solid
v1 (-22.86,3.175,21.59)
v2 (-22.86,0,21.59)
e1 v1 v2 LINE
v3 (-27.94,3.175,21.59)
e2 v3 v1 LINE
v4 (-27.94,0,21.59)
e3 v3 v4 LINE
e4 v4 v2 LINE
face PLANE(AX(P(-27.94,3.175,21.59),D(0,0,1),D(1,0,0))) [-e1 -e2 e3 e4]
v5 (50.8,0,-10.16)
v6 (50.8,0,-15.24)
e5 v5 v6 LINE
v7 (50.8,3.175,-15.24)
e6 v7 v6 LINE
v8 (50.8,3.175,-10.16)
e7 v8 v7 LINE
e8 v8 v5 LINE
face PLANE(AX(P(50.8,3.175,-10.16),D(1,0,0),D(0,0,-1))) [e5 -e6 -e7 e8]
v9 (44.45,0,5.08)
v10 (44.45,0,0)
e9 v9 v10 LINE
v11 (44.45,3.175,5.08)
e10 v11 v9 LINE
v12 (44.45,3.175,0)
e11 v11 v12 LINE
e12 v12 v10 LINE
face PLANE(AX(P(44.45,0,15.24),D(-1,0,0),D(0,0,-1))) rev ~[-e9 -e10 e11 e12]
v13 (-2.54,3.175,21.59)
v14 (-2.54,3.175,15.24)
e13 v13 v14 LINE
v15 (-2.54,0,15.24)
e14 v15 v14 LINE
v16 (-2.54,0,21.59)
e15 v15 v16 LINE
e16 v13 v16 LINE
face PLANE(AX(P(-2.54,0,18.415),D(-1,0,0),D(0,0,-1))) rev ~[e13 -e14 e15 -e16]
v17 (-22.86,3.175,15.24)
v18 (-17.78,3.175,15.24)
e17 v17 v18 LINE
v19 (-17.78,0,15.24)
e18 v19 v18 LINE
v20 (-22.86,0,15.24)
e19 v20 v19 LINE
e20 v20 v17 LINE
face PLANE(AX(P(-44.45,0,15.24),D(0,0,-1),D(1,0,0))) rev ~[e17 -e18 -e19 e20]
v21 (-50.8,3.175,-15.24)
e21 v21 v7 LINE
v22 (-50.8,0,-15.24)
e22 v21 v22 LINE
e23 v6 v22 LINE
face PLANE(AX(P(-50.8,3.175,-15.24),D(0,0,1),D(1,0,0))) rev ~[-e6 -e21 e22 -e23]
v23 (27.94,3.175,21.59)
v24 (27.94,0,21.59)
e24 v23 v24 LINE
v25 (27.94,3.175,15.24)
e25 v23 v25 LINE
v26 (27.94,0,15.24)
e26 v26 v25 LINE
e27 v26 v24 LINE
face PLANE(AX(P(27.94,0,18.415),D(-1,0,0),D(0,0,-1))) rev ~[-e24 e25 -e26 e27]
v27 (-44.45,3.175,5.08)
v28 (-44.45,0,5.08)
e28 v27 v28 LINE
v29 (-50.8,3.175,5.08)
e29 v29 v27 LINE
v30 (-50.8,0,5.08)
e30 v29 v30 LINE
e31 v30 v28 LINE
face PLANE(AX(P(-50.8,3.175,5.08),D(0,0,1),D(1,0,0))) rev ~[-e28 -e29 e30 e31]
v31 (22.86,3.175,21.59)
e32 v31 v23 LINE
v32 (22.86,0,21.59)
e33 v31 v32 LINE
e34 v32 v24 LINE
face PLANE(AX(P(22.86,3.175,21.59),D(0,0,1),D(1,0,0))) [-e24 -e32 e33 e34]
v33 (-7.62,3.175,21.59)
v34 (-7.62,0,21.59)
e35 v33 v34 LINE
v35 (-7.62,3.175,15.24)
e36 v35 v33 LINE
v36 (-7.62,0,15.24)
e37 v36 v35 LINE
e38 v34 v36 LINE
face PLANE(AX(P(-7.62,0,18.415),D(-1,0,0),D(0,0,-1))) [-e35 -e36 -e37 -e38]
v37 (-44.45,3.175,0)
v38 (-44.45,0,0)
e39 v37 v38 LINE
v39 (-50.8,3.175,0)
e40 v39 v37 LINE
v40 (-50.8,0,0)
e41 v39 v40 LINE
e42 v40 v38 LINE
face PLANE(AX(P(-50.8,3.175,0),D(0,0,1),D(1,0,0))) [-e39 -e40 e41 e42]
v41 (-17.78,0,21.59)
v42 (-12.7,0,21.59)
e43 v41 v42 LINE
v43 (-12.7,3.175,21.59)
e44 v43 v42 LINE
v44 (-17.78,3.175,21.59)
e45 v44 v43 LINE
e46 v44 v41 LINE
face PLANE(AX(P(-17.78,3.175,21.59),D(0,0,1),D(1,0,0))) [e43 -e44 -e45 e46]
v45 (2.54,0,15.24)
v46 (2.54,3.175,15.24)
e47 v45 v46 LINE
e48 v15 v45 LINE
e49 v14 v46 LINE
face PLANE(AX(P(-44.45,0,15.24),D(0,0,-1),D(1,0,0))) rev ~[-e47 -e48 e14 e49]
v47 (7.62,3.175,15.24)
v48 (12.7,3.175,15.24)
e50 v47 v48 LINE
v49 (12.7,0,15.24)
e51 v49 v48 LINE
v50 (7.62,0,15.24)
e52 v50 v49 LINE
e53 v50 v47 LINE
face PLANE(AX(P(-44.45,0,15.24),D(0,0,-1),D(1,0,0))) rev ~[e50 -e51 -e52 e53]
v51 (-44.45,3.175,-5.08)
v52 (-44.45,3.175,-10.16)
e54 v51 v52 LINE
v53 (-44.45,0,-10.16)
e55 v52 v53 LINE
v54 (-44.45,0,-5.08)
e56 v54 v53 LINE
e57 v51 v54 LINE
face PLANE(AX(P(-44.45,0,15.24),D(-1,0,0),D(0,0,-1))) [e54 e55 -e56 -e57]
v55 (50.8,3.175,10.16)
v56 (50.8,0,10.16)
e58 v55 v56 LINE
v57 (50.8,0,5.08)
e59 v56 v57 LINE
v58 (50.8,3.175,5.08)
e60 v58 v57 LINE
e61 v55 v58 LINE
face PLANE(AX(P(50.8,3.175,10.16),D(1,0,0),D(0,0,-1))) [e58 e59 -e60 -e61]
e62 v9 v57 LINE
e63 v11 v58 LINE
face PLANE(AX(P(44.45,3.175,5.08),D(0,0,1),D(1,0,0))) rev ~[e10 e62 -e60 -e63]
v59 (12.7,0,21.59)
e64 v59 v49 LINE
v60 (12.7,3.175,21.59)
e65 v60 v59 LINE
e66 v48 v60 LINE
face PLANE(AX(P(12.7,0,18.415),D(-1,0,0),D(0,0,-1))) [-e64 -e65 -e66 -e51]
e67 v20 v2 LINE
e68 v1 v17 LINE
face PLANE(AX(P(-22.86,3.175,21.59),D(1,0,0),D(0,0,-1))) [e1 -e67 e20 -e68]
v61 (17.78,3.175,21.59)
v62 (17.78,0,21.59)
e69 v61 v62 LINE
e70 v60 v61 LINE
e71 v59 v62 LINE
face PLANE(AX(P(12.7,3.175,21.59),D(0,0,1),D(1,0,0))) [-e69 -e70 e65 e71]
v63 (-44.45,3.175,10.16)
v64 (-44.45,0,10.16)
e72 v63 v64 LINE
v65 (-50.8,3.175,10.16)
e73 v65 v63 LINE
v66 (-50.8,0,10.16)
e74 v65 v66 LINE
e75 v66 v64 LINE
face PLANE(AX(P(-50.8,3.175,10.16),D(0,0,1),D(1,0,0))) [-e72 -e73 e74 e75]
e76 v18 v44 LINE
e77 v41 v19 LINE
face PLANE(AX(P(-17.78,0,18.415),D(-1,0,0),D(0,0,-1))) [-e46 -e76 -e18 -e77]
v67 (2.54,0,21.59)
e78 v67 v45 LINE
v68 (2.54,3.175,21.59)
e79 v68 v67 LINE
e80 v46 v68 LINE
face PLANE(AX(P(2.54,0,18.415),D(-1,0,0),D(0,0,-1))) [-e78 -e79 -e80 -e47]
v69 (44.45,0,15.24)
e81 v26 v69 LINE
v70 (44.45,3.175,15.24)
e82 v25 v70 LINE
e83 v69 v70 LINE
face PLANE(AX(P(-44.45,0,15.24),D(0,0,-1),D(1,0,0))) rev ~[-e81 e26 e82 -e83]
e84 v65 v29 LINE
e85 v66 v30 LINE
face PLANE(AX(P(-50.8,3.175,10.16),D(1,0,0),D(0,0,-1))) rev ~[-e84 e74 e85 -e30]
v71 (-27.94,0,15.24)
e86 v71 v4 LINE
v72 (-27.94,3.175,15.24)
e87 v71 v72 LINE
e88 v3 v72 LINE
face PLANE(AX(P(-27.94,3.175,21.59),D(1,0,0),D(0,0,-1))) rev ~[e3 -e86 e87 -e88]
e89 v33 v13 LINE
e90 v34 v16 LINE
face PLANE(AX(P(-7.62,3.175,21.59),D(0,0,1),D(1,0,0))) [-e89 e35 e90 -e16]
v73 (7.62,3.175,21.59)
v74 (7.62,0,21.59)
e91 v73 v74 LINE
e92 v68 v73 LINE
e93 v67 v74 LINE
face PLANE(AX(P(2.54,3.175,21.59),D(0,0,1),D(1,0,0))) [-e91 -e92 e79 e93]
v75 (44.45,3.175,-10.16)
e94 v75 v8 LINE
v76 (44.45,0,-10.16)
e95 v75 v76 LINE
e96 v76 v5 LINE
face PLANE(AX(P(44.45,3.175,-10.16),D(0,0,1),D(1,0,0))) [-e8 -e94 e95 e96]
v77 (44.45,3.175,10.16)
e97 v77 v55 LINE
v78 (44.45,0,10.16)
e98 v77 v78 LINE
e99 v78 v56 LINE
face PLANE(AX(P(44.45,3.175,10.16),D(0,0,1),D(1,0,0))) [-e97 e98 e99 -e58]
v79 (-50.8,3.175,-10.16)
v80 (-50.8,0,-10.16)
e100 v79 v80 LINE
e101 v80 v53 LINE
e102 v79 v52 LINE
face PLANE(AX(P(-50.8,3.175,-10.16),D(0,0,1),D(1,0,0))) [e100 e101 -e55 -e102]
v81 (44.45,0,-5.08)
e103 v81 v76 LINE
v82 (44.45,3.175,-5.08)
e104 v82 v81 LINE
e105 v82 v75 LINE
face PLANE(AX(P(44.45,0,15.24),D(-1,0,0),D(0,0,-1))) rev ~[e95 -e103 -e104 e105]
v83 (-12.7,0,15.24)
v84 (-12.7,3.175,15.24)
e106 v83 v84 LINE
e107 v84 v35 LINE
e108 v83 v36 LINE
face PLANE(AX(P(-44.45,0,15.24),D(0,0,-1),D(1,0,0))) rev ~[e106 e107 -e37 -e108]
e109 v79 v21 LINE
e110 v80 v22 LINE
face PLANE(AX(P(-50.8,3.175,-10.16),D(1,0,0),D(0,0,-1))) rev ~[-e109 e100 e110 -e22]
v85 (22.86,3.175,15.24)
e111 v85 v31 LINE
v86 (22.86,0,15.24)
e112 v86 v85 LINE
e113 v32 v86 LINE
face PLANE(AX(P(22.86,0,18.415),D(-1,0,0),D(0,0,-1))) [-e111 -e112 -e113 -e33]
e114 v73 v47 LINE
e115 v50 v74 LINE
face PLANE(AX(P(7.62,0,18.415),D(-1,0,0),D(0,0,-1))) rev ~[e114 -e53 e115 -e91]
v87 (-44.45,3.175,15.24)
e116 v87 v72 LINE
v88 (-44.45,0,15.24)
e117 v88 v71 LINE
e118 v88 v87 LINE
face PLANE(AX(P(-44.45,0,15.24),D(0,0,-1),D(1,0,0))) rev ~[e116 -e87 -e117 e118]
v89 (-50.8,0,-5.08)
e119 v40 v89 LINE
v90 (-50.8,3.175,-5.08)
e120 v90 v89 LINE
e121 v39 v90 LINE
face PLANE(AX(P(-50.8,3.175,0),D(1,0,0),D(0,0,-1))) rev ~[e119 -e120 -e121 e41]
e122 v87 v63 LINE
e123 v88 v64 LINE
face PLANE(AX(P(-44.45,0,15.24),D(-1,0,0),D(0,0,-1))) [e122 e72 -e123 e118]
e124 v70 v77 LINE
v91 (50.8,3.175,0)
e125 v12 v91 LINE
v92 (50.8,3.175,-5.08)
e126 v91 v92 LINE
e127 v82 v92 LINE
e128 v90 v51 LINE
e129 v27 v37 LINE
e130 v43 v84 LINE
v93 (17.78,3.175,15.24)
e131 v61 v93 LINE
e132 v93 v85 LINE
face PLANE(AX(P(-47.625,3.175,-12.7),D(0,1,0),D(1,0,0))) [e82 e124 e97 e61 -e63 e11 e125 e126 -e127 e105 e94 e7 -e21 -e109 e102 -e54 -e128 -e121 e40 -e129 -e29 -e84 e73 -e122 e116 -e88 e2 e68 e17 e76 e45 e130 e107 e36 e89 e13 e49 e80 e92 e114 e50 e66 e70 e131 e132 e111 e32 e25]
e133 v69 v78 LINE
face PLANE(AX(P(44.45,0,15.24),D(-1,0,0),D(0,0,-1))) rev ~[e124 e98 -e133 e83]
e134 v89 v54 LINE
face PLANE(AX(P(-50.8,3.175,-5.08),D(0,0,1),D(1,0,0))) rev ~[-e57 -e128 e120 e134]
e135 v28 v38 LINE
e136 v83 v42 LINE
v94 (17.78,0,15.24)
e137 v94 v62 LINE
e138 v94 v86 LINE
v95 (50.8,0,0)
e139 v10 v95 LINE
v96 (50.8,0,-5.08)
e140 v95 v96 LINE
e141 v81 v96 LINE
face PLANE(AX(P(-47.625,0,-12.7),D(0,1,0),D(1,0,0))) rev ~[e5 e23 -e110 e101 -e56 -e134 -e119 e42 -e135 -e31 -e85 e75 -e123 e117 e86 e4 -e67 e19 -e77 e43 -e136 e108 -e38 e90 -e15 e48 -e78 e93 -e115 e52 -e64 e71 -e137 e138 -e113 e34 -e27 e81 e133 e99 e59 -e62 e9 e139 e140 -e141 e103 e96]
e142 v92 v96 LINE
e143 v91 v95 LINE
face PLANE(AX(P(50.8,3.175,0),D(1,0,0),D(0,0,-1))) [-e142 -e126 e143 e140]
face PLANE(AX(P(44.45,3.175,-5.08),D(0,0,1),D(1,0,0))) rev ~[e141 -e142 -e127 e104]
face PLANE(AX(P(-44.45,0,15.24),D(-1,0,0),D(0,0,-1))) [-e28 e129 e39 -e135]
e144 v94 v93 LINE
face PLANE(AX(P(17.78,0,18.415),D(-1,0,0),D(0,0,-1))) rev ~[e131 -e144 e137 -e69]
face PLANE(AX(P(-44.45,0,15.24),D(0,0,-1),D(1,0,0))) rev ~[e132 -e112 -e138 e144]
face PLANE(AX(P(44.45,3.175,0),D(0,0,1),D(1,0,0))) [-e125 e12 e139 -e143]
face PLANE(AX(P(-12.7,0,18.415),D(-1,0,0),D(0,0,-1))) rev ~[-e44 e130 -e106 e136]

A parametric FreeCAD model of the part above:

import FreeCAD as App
import Part
import Sketcher
Q = App.Units.Quantity


def add_polygon(sketch, points):
    """Adds a closed chain of lines whose ends are joined by coincident constraints."""
    first, n = sketch.GeometryCount, len(points)
    for a, b in zip(points, points[1:] + points[:1]):
        sketch.addGeometry(Part.LineSegment(App.Vector(*a, 0), App.Vector(*b, 0)), False)
    for i in range(n):
        sketch.addConstraint(Sketcher.Constraint("Coincident", first + i, 2, first + (i + 1) % n, 1))

doc = App.newDocument("Part")
body = doc.addObject("PartDesign::Body", "Body")

# Sketch on XZ plane
sketch1 = body.newObject("Sketcher::SketchObject", "Sketch")
sketch1.AttachmentSupport = (doc.getObject("XZ_Plane"), [""])
sketch1.MapMode = "FlatFace"
add_polygon(sketch1, [(-44, -15), (-44, 15), (44, 15), (44, -15)])  # lines 0-3
sketch1.addConstraint(Sketcher.Constraint("Vertical", 0))
sketch1.addConstraint(Sketcher.Constraint("Horizontal", 1))
sketch1.addConstraint(Sketcher.Constraint("Vertical", 2))
sketch1.addConstraint(Sketcher.Constraint("Horizontal", 3))
sketch1.addConstraint(Sketcher.Constraint("Symmetric", 0, 2, 2, 2, -1, 1))
sketch1.addConstraint(Sketcher.Constraint("DistanceX", 1, 1, 1, 2, Q("3.5 in")))
sketch1.addConstraint(Sketcher.Constraint("DistanceY", 0, 1, 0, 2, Q("1.2 in")))
pad1 = body.newObject("PartDesign::Pad", "Pad")
pad1.Profile = sketch1
pad1.Length = Q("0.125 in")
pad1.Reversed = True

# Sketch on XZ plane
sketch2 = body.newObject("Sketcher::SketchObject", "Sketch001")
sketch2.AttachmentSupport = (doc.getObject("XZ_Plane"), [""])
sketch2.MapMode = "FlatFace"
add_polygon(sketch2, [(-27.9, 15.2), (-27.9, 18.4), (-22.9, 18.4), (-22.9, 15.2)])  # lines 0-3
add_polygon(sketch2, [(-17.8, 15.2), (-17.8, 18.4), (-12.7, 18.4), (-12.7, 15.2)])  # lines 4-7
add_polygon(sketch2, [(-7.6, 15.2), (-7.6, 18.4), (-2.5, 18.4), (-2.5, 15.2)])  # lines 8-11
add_polygon(sketch2, [(2.5, 15.2), (2.5, 18.4), (7.6, 18.4), (7.6, 15.2)])  # lines 12-15
add_polygon(sketch2, [(12.7, 15.2), (12.7, 18.4), (17.8, 18.4), (17.8, 15.2)])  # lines 16-19
add_polygon(sketch2, [(22.9, 15.2), (22.9, 18.4), (27.9, 18.4), (27.9, 15.2)])  # lines 20-23
sketch2.addConstraint(Sketcher.Constraint("Vertical", 0))
sketch2.addConstraint(Sketcher.Constraint("Horizontal", 1))
sketch2.addConstraint(Sketcher.Constraint("Vertical", 2))
sketch2.addConstraint(Sketcher.Constraint("Horizontal", 3))
sketch2.addConstraint(Sketcher.Constraint("Vertical", 4))
sketch2.addConstraint(Sketcher.Constraint("Horizontal", 5))
sketch2.addConstraint(Sketcher.Constraint("Vertical", 6))
sketch2.addConstraint(Sketcher.Constraint("Horizontal", 7))
sketch2.addConstraint(Sketcher.Constraint("Vertical", 8))
sketch2.addConstraint(Sketcher.Constraint("Horizontal", 9))
sketch2.addConstraint(Sketcher.Constraint("Vertical", 10))
sketch2.addConstraint(Sketcher.Constraint("Horizontal", 11))
sketch2.addConstraint(Sketcher.Constraint("Vertical", 12))
sketch2.addConstraint(Sketcher.Constraint("Horizontal", 13))
sketch2.addConstraint(Sketcher.Constraint("Vertical", 14))
sketch2.addConstraint(Sketcher.Constraint("Horizontal", 15))
sketch2.addConstraint(Sketcher.Constraint("Vertical", 16))
sketch2.addConstraint(Sketcher.Constraint("Horizontal", 17))
sketch2.addConstraint(Sketcher.Constraint("Vertical", 18))
sketch2.addConstraint(Sketcher.Constraint("Horizontal", 19))
sketch2.addConstraint(Sketcher.Constraint("Vertical", 20))
sketch2.addConstraint(Sketcher.Constraint("Horizontal", 21))
sketch2.addConstraint(Sketcher.Constraint("Vertical", 22))
sketch2.addConstraint(Sketcher.Constraint("Horizontal", 23))
sketch2.addConstraint(Sketcher.Constraint("Symmetric", 9, 2, 12, 2, -2))
sketch2.addConstraint(Sketcher.Constraint("Symmetric", 11, 2, 14, 2, -2))
sketch2.addConstraint(Sketcher.Constraint("Symmetric", 5, 2, 16, 2, -2))
sketch2.addConstraint(Sketcher.Constraint("Symmetric", 7, 2, 18, 2, -2))
sketch2.addConstraint(Sketcher.Constraint("Symmetric", 1, 2, 20, 2, -2))
sketch2.addConstraint(Sketcher.Constraint("Symmetric", 3, 2, 22, 2, -2))
sketch2.addConstraint(Sketcher.Constraint("Horizontal", 1, 2, 4, 2))
sketch2.addConstraint(Sketcher.Constraint("Horizontal", 3, 2, 6, 2))
sketch2.addConstraint(Sketcher.Constraint("Horizontal", 5, 2, 8, 2))
sketch2.addConstraint(Sketcher.Constraint("Horizontal", 7, 2, 10, 2))
sketch2.addConstraint(Sketcher.Constraint("Equal", 3, 5))
sketch2.addConstraint(Sketcher.Constraint("Equal", 7, 9))
sketch2.addConstraint(Sketcher.Constraint("DistanceX", 1, 1, 1, 2, Q("0.2 in")))
sketch2.addConstraint(Sketcher.Constraint("DistanceX", 0, 2, -1, 1, Q("1.1 in")))
sketch2.addConstraint(Sketcher.Constraint("DistanceY", -1, 1, 2, 2, Q("0.6 in")))
sketch2.addConstraint(Sketcher.Constraint("DistanceX", 4, 2, -1, 1, Q("0.7 in")))
sketch2.addConstraint(Sketcher.Constraint("DistanceX", 8, 2, -1, 1, Q("0.3 in")))
sketch2.addConstraint(Sketcher.Constraint("DistanceY", 0, 1, 0, 2, Q("0.125 in")))
pad2 = body.newObject("PartDesign::Pad", "Pad001")
pad2.Profile = sketch2
pad2.Length = Q("0.125 in")
pad2.Reversed = True

# Sketch on XZ plane
sketch3 = body.newObject("Sketcher::SketchObject", "Sketch002")
sketch3.AttachmentSupport = (doc.getObject("XZ_Plane"), [""])
sketch3.MapMode = "FlatFace"
sketch3.AttachmentOffset = App.Placement(App.Vector(0, 0, -0.125 * 25.4), App.Rotation())
add_polygon(sketch3, [(-27.9, 18.4), (-27.9, 21.6), (-22.9, 21.6), (-22.9, 18.4)])  # lines 0-3
add_polygon(sketch3, [(-17.8, 18.4), (-17.8, 21.6), (-12.7, 21.6), (-12.7, 18.4)])  # lines 4-7
add_polygon(sketch3, [(-7.6, 18.4), (-7.6, 21.6), (-2.5, 21.6), (-2.5, 18.4)])  # lines 8-11
add_polygon(sketch3, [(2.5, 18.4), (2.5, 21.6), (7.6, 21.6), (7.6, 18.4)])  # lines 12-15
add_polygon(sketch3, [(12.7, 18.4), (12.7, 21.6), (17.8, 21.6), (17.8, 18.4)])  # lines 16-19
add_polygon(sketch3, [(22.9, 18.4), (22.9, 21.6), (27.9, 21.6), (27.9, 18.4)])  # lines 20-23
sketch3.addConstraint(Sketcher.Constraint("Vertical", 0))
sketch3.addConstraint(Sketcher.Constraint("Horizontal", 1))
sketch3.addConstraint(Sketcher.Constraint("Vertical", 2))
sketch3.addConstraint(Sketcher.Constraint("Horizontal", 3))
sketch3.addConstraint(Sketcher.Constraint("Vertical", 4))
sketch3.addConstraint(Sketcher.Constraint("Horizontal", 5))
sketch3.addConstraint(Sketcher.Constraint("Vertical", 6))
sketch3.addConstraint(Sketcher.Constraint("Horizontal", 7))
sketch3.addConstraint(Sketcher.Constraint("Vertical", 8))
sketch3.addConstraint(Sketcher.Constraint("Horizontal", 9))
sketch3.addConstraint(Sketcher.Constraint("Vertical", 10))
sketch3.addConstraint(Sketcher.Constraint("Horizontal", 11))
sketch3.addConstraint(Sketcher.Constraint("Vertical", 12))
sketch3.addConstraint(Sketcher.Constraint("Horizontal", 13))
sketch3.addConstraint(Sketcher.Constraint("Vertical", 14))
sketch3.addConstraint(Sketcher.Constraint("Horizontal", 15))
sketch3.addConstraint(Sketcher.Constraint("Vertical", 16))
sketch3.addConstraint(Sketcher.Constraint("Horizontal", 17))
sketch3.addConstraint(Sketcher.Constraint("Vertical", 18))
sketch3.addConstraint(Sketcher.Constraint("Horizontal", 19))
sketch3.addConstraint(Sketcher.Constraint("Vertical", 20))
sketch3.addConstraint(Sketcher.Constraint("Horizontal", 21))
sketch3.addConstraint(Sketcher.Constraint("Vertical", 22))
sketch3.addConstraint(Sketcher.Constraint("Horizontal", 23))
sketch3.addConstraint(Sketcher.Constraint("Symmetric", 9, 2, 12, 2, -2))
sketch3.addConstraint(Sketcher.Constraint("Symmetric", 11, 2, 14, 2, -2))
sketch3.addConstraint(Sketcher.Constraint("Symmetric", 5, 2, 16, 2, -2))
sketch3.addConstraint(Sketcher.Constraint("Symmetric", 7, 2, 18, 2, -2))
sketch3.addConstraint(Sketcher.Constraint("Symmetric", 1, 2, 20, 2, -2))
sketch3.addConstraint(Sketcher.Constraint("Symmetric", 3, 2, 22, 2, -2))
sketch3.addConstraint(Sketcher.Constraint("Horizontal", 1, 2, 4, 2))
sketch3.addConstraint(Sketcher.Constraint("Horizontal", 3, 2, 6, 2))
sketch3.addConstraint(Sketcher.Constraint("Horizontal", 5, 2, 8, 2))
sketch3.addConstraint(Sketcher.Constraint("Horizontal", 7, 2, 10, 2))
sketch3.addConstraint(Sketcher.Constraint("Equal", 3, 5))
sketch3.addConstraint(Sketcher.Constraint("Equal", 7, 9))
sketch3.addConstraint(Sketcher.Constraint("DistanceX", 1, 1, 1, 2, Q("0.2 in")))
sketch3.addConstraint(Sketcher.Constraint("DistanceX", 0, 2, -1, 1, Q("1.1 in")))
sketch3.addConstraint(Sketcher.Constraint("DistanceX", 4, 2, -1, 1, Q("0.7 in")))
sketch3.addConstraint(Sketcher.Constraint("DistanceX", 8, 2, -1, 1, Q("0.3 in")))
sketch3.addConstraint(Sketcher.Constraint("DistanceY", 0, 1, 0, 2, Q("0.125 in")))
sketch3.addConstraint(Sketcher.Constraint("DistanceY", -1, 1, 0, 2, Q("0.85 in")))
pad3 = body.newObject("PartDesign::Pad", "Pad002")
pad3.Profile = sketch3
pad3.Length = Q("0.125 in")

# Sketch on XZ plane
sketch4 = body.newObject("Sketcher::SketchObject", "Sketch003")
sketch4.AttachmentSupport = (doc.getObject("XZ_Plane"), [""])
sketch4.MapMode = "FlatFace"
sketch4.AttachmentOffset = App.Placement(App.Vector(0, 0, -0.125 * 25.4), App.Rotation())
add_polygon(sketch4, [(-51, -5), (-51, 0), (-44, 0), (-44, -5)])  # lines 0-3
add_polygon(sketch4, [(-51, -15), (-51, -10), (-44, -10), (-44, -15)])  # lines 4-7
add_polygon(sketch4, [(-51, 5), (-51, 10), (-44, 10), (-44, 5)])  # lines 8-11
add_polygon(sketch4, [(44, 5), (44, 10), (51, 10), (51, 5)])  # lines 12-15
add_polygon(sketch4, [(44, -5), (44, 0), (51, 0), (51, -5)])  # lines 16-19
add_polygon(sketch4, [(44, -15), (44, -10), (51, -10), (51, -15)])  # lines 20-23
sketch4.addConstraint(Sketcher.Constraint("Vertical", 0))
sketch4.addConstraint(Sketcher.Constraint("Horizontal", 1))
sketch4.addConstraint(Sketcher.Constraint("Vertical", 2))
sketch4.addConstraint(Sketcher.Constraint("Horizontal", 3))
sketch4.addConstraint(Sketcher.Constraint("Vertical", 4))
sketch4.addConstraint(Sketcher.Constraint("Horizontal", 5))
sketch4.addConstraint(Sketcher.Constraint("Vertical", 6))
sketch4.addConstraint(Sketcher.Constraint("Horizontal", 7))
sketch4.addConstraint(Sketcher.Constraint("Vertical", 8))
sketch4.addConstraint(Sketcher.Constraint("Horizontal", 9))
sketch4.addConstraint(Sketcher.Constraint("Vertical", 10))
sketch4.addConstraint(Sketcher.Constraint("Horizontal", 11))
sketch4.addConstraint(Sketcher.Constraint("Vertical", 12))
sketch4.addConstraint(Sketcher.Constraint("Horizontal", 13))
sketch4.addConstraint(Sketcher.Constraint("Vertical", 14))
sketch4.addConstraint(Sketcher.Constraint("Horizontal", 15))
sketch4.addConstraint(Sketcher.Constraint("Vertical", 16))
sketch4.addConstraint(Sketcher.Constraint("Horizontal", 17))
sketch4.addConstraint(Sketcher.Constraint("Vertical", 18))
sketch4.addConstraint(Sketcher.Constraint("Horizontal", 19))
sketch4.addConstraint(Sketcher.Constraint("Vertical", 20))
sketch4.addConstraint(Sketcher.Constraint("Horizontal", 21))
sketch4.addConstraint(Sketcher.Constraint("Vertical", 22))
sketch4.addConstraint(Sketcher.Constraint("Horizontal", 23))
sketch4.addConstraint(Sketcher.Constraint("Symmetric", 5, 2, 12, 2, -1, 1))
sketch4.addConstraint(Sketcher.Constraint("Symmetric", 3, 2, 14, 2, -1, 1))
sketch4.addConstraint(Sketcher.Constraint("Symmetric", 1, 2, 16, 2, -1, 1))
sketch4.addConstraint(Sketcher.Constraint("Symmetric", 11, 2, 18, 2, -1, 1))
sketch4.addConstraint(Sketcher.Constraint("Symmetric", 9, 2, 20, 2, -1, 1))
sketch4.addConstraint(Sketcher.Constraint("Symmetric", 9, 2, 12, 2, -2))
sketch4.addConstraint(Sketcher.Constraint("Symmetric", 11, 2, 14, 2, -2))
sketch4.addConstraint(Sketcher.Constraint("Symmetric", 7, 2, 22, 2, -2))
sketch4.addConstraint(Sketcher.Constraint("PointOnObject", 0, 2, -1))
sketch4.addConstraint(Sketcher.Constraint("Vertical", 3, 2, 4, 2))
sketch4.addConstraint(Sketcher.Constraint("Vertical", 2, 2, 5, 2))
sketch4.addConstraint(Sketcher.Constraint("Equal", 2, 4))
sketch4.addConstraint(Sketcher.Constraint("Equal", 6, 8))
sketch4.addConstraint(Sketcher.Constraint("DistanceY", 0, 1, 0, 2, Q("0.2 in")))
sketch4.addConstraint(Sketcher.Constraint("DistanceX", 0, 2, -1, 1, Q("2 in")))
sketch4.addConstraint(Sketcher.Constraint("DistanceX", 1, 1, 1, 2, Q("0.25 in")))
pad4 = body.newObject("PartDesign::Pad", "Pad003")
pad4.Profile = sketch4
pad4.Length = Q("0.125 in")

doc.recompute()
